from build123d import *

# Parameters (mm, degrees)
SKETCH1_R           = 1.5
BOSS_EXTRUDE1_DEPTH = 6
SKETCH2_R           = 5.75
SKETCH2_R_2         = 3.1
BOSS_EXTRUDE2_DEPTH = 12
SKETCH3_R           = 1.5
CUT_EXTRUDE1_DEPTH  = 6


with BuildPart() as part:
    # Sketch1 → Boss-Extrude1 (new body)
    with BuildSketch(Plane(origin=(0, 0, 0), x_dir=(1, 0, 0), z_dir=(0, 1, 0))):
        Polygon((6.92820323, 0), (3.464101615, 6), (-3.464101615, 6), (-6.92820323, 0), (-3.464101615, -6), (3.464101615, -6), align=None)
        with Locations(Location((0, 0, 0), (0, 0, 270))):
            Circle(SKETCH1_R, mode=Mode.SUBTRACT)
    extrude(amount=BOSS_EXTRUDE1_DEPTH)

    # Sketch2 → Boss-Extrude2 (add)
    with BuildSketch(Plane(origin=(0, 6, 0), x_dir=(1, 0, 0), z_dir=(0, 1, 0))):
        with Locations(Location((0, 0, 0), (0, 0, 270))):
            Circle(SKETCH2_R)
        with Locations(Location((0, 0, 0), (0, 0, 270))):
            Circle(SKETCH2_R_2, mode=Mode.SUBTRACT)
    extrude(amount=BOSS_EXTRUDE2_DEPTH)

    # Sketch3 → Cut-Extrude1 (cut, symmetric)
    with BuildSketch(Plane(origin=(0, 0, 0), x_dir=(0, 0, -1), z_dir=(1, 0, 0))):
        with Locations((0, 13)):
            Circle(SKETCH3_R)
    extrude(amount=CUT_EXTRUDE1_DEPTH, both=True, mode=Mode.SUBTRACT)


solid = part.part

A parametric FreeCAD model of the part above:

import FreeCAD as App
import Part
import Sketcher

V = App.Vector
Q = App.Units.Quantity


def add_polygon(sketch, points):
    """Adds a closed chain of lines whose ends are joined by coincident constraints."""
    first, n = sketch.GeometryCount, len(points)
    for a, b in zip(points, points[1:] + points[:1]):
        sketch.addGeometry(Part.LineSegment(App.Vector(*a, 0), App.Vector(*b, 0)), False)
    for i in range(n):
        sketch.addConstraint(Sketcher.Constraint("Coincident", first + i, 2, first + (i + 1) % n, 1))

doc = App.newDocument("Part")
body = doc.addObject("PartDesign::Body", "Body")

sketch1 = body.newObject("Sketcher::SketchObject", "Sketch")
sketch1.AttachmentSupport = (doc.getObject("XZ_Plane"), [""])
sketch1.MapMode = "FlatFace"
add_polygon(sketch1, [(6.9, 0), (3.5, -6), (-3.5, -6), (-6.9, 0), (-3.5, 6), (3.5, 6)])
sketch1.addGeometry(Part.Circle(V(0, 0, 0), V(0, 0, 1), 1.5), False)
sketch1.addConstraint([
    Sketcher.Constraint("Horizontal", 1),
    Sketcher.Constraint("Horizontal", 4),
    Sketcher.Constraint("Coincident", 6, 3, -1, 1),
    Sketcher.Constraint("Symmetric", 0, 2, 3, 2, -1, 1),
    Sketcher.Constraint("Symmetric", 2, 2, 5, 2, -1, 1),
    Sketcher.Constraint("PointOnObject", 2, 2, -1),
    Sketcher.Constraint("Parallel", 2, 5),
    Sketcher.Constraint("Vertical", 1, 2, 3, 2),
    Sketcher.Constraint("Diameter", 6, Q("3 mm")),
    Sketcher.Constraint("Angle", 0, Q("-120 deg")),
    Sketcher.Constraint("DistanceY", 0, 2, -1, 1, Q("6 mm")),
    Sketcher.Constraint("DistanceX", -1, 1, 0, 2, Q("3.464102 mm")),
])
pad1 = body.newObject("PartDesign::Pad", "Pad")
pad1.Profile = sketch1
pad1.Length = 6
pad1.Reversed = True

sketch2 = body.newObject("Sketcher::SketchObject", "Sketch001")
sketch2.AttachmentSupport = (doc.getObject("XZ_Plane"), [""])
sketch2.MapMode = "FlatFace"
sketch2.AttachmentOffset = App.Placement(V(0, 0, -6), App.Rotation())
sketch2.addGeometry([
    Part.Circle(V(0, 0, 0), V(0, 0, 1), 5.8),
    Part.Circle(V(0, 0, 0), V(0, 0, 1), 3.1),
], False)
sketch2.addConstraint([
    Sketcher.Constraint("Coincident", 0, 3, -1, 1),
    Sketcher.Constraint("Coincident", 1, 3, -1, 1),
    Sketcher.Constraint("Diameter", 0, Q("11.5 mm")),
    Sketcher.Constraint("Diameter", 1, Q("6.2 mm")),
])
pad2 = body.newObject("PartDesign::Pad", "Pad001")
pad2.Profile = sketch2
pad2.Length = 12
pad2.Reversed = True

sketch3 = body.newObject("Sketcher::SketchObject", "Sketch002")
sketch3.AttachmentSupport = (doc.getObject("YZ_Plane"), [""])
sketch3.MapMode = "FlatFace"
sketch3.addGeometry(Part.Circle(V(13, 0, 0), V(0, 0, 1), 1.5), False)
sketch3.addConstraint([
    Sketcher.Constraint("PointOnObject", 0, 3, -1),
    Sketcher.Constraint("Diameter", 0, Q("3 mm")),
    Sketcher.Constraint("DistanceX", -1, 1, 0, 3, Q("13 mm")),
])
pocket1 = body.newObject("PartDesign::Pocket", "Pocket")
pocket1.Profile = sketch3
pocket1.Length = 12
pocket1.Midplane = True

doc.recompute()
